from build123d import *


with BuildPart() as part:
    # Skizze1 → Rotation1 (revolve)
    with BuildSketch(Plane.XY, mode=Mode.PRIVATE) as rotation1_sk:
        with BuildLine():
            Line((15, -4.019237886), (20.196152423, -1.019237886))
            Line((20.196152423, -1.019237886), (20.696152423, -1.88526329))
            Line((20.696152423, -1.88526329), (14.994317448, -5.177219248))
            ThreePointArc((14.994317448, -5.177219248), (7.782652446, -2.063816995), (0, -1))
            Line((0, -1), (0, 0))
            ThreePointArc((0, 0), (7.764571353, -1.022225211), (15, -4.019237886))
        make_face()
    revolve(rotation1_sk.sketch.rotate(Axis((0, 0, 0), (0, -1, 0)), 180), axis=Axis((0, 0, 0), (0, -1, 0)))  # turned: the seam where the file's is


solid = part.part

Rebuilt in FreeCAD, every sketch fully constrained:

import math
import FreeCAD as App
import Part
import Sketcher
Q = App.Units.Quantity

doc = App.newDocument("Part")
body = doc.addObject("PartDesign::Body", "Body")

sketch1 = body.newObject("Sketcher::SketchObject", "Sketch")
sketch1.AttachmentSupport = (doc.getObject("XY_Plane"), [""])
sketch1.MapMode = "FlatFace"
sketch1.addGeometry(Part.LineSegment(App.Vector(20.196152, -1.019238, 0), App.Vector(15, -4.019238, 0)), False)
sketch1.addGeometry(Part.ArcOfCircle(Part.Circle(App.Vector(0, -30, 0), App.Vector(0, 0, 1), 30), math.radians(60), math.radians(90)), False)
sketch1.addGeometry(Part.LineSegment(App.Vector(0, 0, 0), App.Vector(0, -1, 0)), False)
sketch1.addGeometry(Part.ArcOfCircle(Part.Circle(App.Vector(0, -30, 0), App.Vector(0, 0, 1), 29), math.radians(58.865727), math.radians(90)), False)
sketch1.addGeometry(Part.LineSegment(App.Vector(14.994317, -5.177219, 0), App.Vector(20.696152, -1.885263, 0)), False)
sketch1.addGeometry(Part.LineSegment(App.Vector(20.696152, -1.885263, 0), App.Vector(20.196152, -1.019238, 0)), False)
sketch1.addConstraint(Sketcher.Constraint("Coincident", 0, 2, 1, 1))
sketch1.addConstraint(Sketcher.Constraint("Coincident", 1, 2, 2, 1))
sketch1.addConstraint(Sketcher.Constraint("Coincident", 2, 2, 3, 2))
sketch1.addConstraint(Sketcher.Constraint("Coincident", 3, 1, 4, 1))
sketch1.addConstraint(Sketcher.Constraint("Coincident", 4, 2, 5, 1))
sketch1.addConstraint(Sketcher.Constraint("Coincident", 5, 2, 0, 1))
sketch1.addConstraint(Sketcher.Constraint("Vertical", 2))
sketch1.addConstraint(Sketcher.Constraint("Coincident", 1, 2, -1, 1))
sketch1.addConstraint(Sketcher.Constraint("Coincident", 3, 3, 1, 3))
sketch1.addConstraint(Sketcher.Constraint("PointOnObject", 1, 3, -2))
sketch1.addConstraint(Sketcher.Constraint("Parallel", 0, 4))
sketch1.addConstraint(Sketcher.Constraint("Perpendicular", 4, 5))
sketch1.addConstraint(Sketcher.Constraint("Radius", 1, Q("30 mm")))
sketch1.addConstraint(Sketcher.Constraint("Radius", 3, Q("29 mm")))
sketch1.addConstraint(Sketcher.Constraint("Angle", 0, Q("-150 deg")))
sketch1.addConstraint(Sketcher.Constraint("Distance", 0, Q("6 mm")))
sketch1.addConstraint(Sketcher.Constraint("Distance", 5, Q("1 mm")))
sketch1.addConstraint(Sketcher.Constraint("DistanceX", -1, 1, 0, 2, Q("15 mm")))
revolution = body.newObject("PartDesign::Revolution", "Revolution")
revolution.Profile = sketch1
revolution.ReferenceAxis = (sketch1, ["V_Axis"])
revolution.Angle = 360

doc.recompute()
